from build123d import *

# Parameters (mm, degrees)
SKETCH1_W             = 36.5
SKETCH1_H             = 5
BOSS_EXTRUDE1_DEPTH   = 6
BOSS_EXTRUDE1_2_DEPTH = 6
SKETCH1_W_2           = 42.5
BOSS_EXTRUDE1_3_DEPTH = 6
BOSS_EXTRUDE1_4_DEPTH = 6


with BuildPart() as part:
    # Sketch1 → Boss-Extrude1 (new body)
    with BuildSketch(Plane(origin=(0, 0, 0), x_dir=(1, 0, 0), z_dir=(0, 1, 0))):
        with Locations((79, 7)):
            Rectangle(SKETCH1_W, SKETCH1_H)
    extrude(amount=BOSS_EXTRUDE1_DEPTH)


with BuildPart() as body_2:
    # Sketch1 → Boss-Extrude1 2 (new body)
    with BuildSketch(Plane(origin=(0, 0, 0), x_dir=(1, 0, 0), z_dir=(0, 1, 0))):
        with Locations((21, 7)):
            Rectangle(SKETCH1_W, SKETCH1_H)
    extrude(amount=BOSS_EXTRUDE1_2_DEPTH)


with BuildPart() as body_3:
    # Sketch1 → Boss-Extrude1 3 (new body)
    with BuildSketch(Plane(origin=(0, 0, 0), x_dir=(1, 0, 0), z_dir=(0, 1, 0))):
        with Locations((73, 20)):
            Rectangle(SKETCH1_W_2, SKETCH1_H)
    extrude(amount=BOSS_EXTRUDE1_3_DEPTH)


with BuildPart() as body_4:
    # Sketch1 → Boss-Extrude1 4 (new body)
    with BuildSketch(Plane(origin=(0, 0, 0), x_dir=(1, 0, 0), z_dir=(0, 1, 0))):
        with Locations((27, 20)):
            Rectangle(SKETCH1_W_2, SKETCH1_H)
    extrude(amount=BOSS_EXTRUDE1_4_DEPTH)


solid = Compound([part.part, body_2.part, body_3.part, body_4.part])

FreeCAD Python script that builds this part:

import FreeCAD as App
import Part
import Sketcher

V = App.Vector
Q = App.Units.Quantity

doc = App.newDocument("Part")
params = doc.addObject("Spreadsheet::Sheet", "Params")
for row, (alias, value) in enumerate([
    ("sketch1_height", "5 mm"),
    ("sketch1_width", "36.5 mm"),
    ("pad1_length", "6 mm"),
    ("sketch2_height", "5 mm"),
    ("sketch2_width", "36.5 mm"),
    ("pad2_length", "6 mm"),
    ("sketch3_height", "5 mm"),
    ("sketch3_width", "42.5 mm"),
    ("pad3_length", "6 mm"),
    ("sketch4_height", "5 mm"),
    ("sketch4_width", "42.5 mm"),
    ("pad4_length", "6 mm"),
], start=1):
    params.set(f"A{row}", alias)
    params.set(f"B{row}", "=" + value)
    params.setAlias(f"B{row}", alias)

body = doc.addObject("PartDesign::Body", "Body")

sketch1 = body.newObject("Sketcher::SketchObject", "Sketch")
sketch1.AttachmentSupport = (doc.getObject("XZ_Plane"), [""])
sketch1.MapMode = "FlatFace"
sketch1.addGeometry(Part.LineSegment(V(61, -10, 0), V(61, -4, 0)), False)
sketch1.addGeometry(Part.LineSegment(V(61, -4, 0), V(97, -4, 0)), False)
sketch1.addGeometry(Part.LineSegment(V(97, -4, 0), V(97, -10, 0)), False)
sketch1.addGeometry(Part.LineSegment(V(97, -10, 0), V(61, -10, 0)), False)
sketch1.addConstraint(Sketcher.Constraint("Coincident", 0, 2, 1, 1))
sketch1.addConstraint(Sketcher.Constraint("Coincident", 1, 2, 2, 1))
sketch1.addConstraint(Sketcher.Constraint("Coincident", 2, 2, 3, 1))
sketch1.addConstraint(Sketcher.Constraint("Coincident", 3, 2, 0, 1))
sketch1.addConstraint(Sketcher.Constraint("Vertical", 0))
sketch1.addConstraint(Sketcher.Constraint("Horizontal", 1))
sketch1.addConstraint(Sketcher.Constraint("Vertical", 2))
sketch1.addConstraint(Sketcher.Constraint("Horizontal", 3))
sketch1.addConstraint(Sketcher.Constraint("DistanceY", 0, 1, 0, 2, Q("5 mm")))
sketch1.addConstraint(Sketcher.Constraint("DistanceX", 1, 1, 1, 2, Q("36.5 mm")))
sketch1.addConstraint(Sketcher.Constraint("DistanceY", 0, 2, -1, 1, Q("4.5 mm")))
sketch1.addConstraint(Sketcher.Constraint("DistanceX", -1, 1, 0, 2, Q("60.75 mm")))
sketch1.setExpression("Constraints[8]", "Params.sketch1_height")
sketch1.setExpression("Constraints[9]", "Params.sketch1_width")
pad1 = body.newObject("PartDesign::Pad", "Pad")
pad1.Profile = sketch1
pad1.setExpression("Length", "Params.pad1_length")
pad1.Reversed = True
body2 = doc.addObject("PartDesign::Body", "Body001")

sketch2 = body2.newObject("Sketcher::SketchObject", "Sketch001")
sketch2.AttachmentSupport = (doc.getObject("XZ_Plane001"), [""])
sketch2.MapMode = "FlatFace"
sketch2.addGeometry(Part.LineSegment(V(3, -10, 0), V(3, -4, 0)), False)
sketch2.addGeometry(Part.LineSegment(V(3, -4, 0), V(39, -4, 0)), False)
sketch2.addGeometry(Part.LineSegment(V(39, -4, 0), V(39, -10, 0)), False)
sketch2.addGeometry(Part.LineSegment(V(39, -10, 0), V(3, -10, 0)), False)
sketch2.addConstraint(Sketcher.Constraint("Coincident", 0, 2, 1, 1))
sketch2.addConstraint(Sketcher.Constraint("Coincident", 1, 2, 2, 1))
sketch2.addConstraint(Sketcher.Constraint("Coincident", 2, 2, 3, 1))
sketch2.addConstraint(Sketcher.Constraint("Coincident", 3, 2, 0, 1))
sketch2.addConstraint(Sketcher.Constraint("Vertical", 0))
sketch2.addConstraint(Sketcher.Constraint("Horizontal", 1))
sketch2.addConstraint(Sketcher.Constraint("Vertical", 2))
sketch2.addConstraint(Sketcher.Constraint("Horizontal", 3))
sketch2.addConstraint(Sketcher.Constraint("DistanceY", 0, 1, 0, 2, Q("5 mm")))
sketch2.addConstraint(Sketcher.Constraint("DistanceX", 1, 1, 1, 2, Q("36.5 mm")))
sketch2.addConstraint(Sketcher.Constraint("DistanceY", 0, 2, -1, 1, Q("4.5 mm")))
sketch2.addConstraint(Sketcher.Constraint("DistanceX", -1, 1, 0, 2, Q("2.75 mm")))
sketch2.setExpression("Constraints[8]", "Params.sketch2_height")
sketch2.setExpression("Constraints[9]", "Params.sketch2_width")
pad2 = body2.newObject("PartDesign::Pad", "Pad001")
pad2.Profile = sketch2
pad2.setExpression("Length", "Params.pad2_length")
pad2.Reversed = True
body3 = doc.addObject("PartDesign::Body", "Body002")

sketch3 = body3.newObject("Sketcher::SketchObject", "Sketch002")
sketch3.AttachmentSupport = (doc.getObject("XZ_Plane002"), [""])
sketch3.MapMode = "FlatFace"
sketch3.addGeometry(Part.LineSegment(V(52, -22, 0), V(52, -18, 0)), False)
sketch3.addGeometry(Part.LineSegment(V(52, -18, 0), V(94, -18, 0)), False)
sketch3.addGeometry(Part.LineSegment(V(94, -18, 0), V(94, -22, 0)), False)
sketch3.addGeometry(Part.LineSegment(V(94, -22, 0), V(52, -22, 0)), False)
sketch3.addConstraint(Sketcher.Constraint("Coincident", 0, 2, 1, 1))
sketch3.addConstraint(Sketcher.Constraint("Coincident", 1, 2, 2, 1))
sketch3.addConstraint(Sketcher.Constraint("Coincident", 2, 2, 3, 1))
sketch3.addConstraint(Sketcher.Constraint("Coincident", 3, 2, 0, 1))
sketch3.addConstraint(Sketcher.Constraint("Vertical", 0))
sketch3.addConstraint(Sketcher.Constraint("Horizontal", 1))
sketch3.addConstraint(Sketcher.Constraint("Vertical", 2))
sketch3.addConstraint(Sketcher.Constraint("Horizontal", 3))
sketch3.addConstraint(Sketcher.Constraint("DistanceY", 0, 1, 0, 2, Q("5 mm")))
sketch3.addConstraint(Sketcher.Constraint("DistanceX", 1, 1, 1, 2, Q("42.5 mm")))
sketch3.addConstraint(Sketcher.Constraint("DistanceY", 0, 2, -1, 1, Q("17.5 mm")))
sketch3.addConstraint(Sketcher.Constraint("DistanceX", -1, 1, 0, 2, Q("51.75 mm")))
sketch3.setExpression("Constraints[8]", "Params.sketch3_height")
sketch3.setExpression("Constraints[9]", "Params.sketch3_width")
pad3 = body3.newObject("PartDesign::Pad", "Pad002")
pad3.Profile = sketch3
pad3.setExpression("Length", "Params.pad3_length")
pad3.Reversed = True
body4 = doc.addObject("PartDesign::Body", "Body003")

sketch4 = body4.newObject("Sketcher::SketchObject", "Sketch003")
sketch4.AttachmentSupport = (doc.getObject("XZ_Plane003"), [""])
sketch4.MapMode = "FlatFace"
sketch4.addGeometry(Part.LineSegment(V(6, -22, 0), V(6, -18, 0)), False)
sketch4.addGeometry(Part.LineSegment(V(6, -18, 0), V(48, -18, 0)), False)
sketch4.addGeometry(Part.LineSegment(V(48, -18, 0), V(48, -22, 0)), False)
sketch4.addGeometry(Part.LineSegment(V(48, -22, 0), V(6, -22, 0)), False)
sketch4.addConstraint(Sketcher.Constraint("Coincident", 0, 2, 1, 1))
sketch4.addConstraint(Sketcher.Constraint("Coincident", 1, 2, 2, 1))
sketch4.addConstraint(Sketcher.Constraint("Coincident", 2, 2, 3, 1))
sketch4.addConstraint(Sketcher.Constraint("Coincident", 3, 2, 0, 1))
sketch4.addConstraint(Sketcher.Constraint("Vertical", 0))
sketch4.addConstraint(Sketcher.Constraint("Horizontal", 1))
sketch4.addConstraint(Sketcher.Constraint("Vertical", 2))
sketch4.addConstraint(Sketcher.Constraint("Horizontal", 3))
sketch4.addConstraint(Sketcher.Constraint("DistanceY", 0, 1, 0, 2, Q("5 mm")))
sketch4.addConstraint(Sketcher.Constraint("DistanceX", 1, 1, 1, 2, Q("42.5 mm")))
sketch4.addConstraint(Sketcher.Constraint("DistanceY", 0, 2, -1, 1, Q("17.5 mm")))
sketch4.addConstraint(Sketcher.Constraint("DistanceX", -1, 1, 0, 2, Q("5.75 mm")))
sketch4.setExpression("Constraints[8]", "Params.sketch4_height")
sketch4.setExpression("Constraints[9]", "Params.sketch4_width")
pad4 = body4.newObject("PartDesign::Pad", "Pad003")
pad4.Profile = sketch4
pad4.setExpression("Length", "Params.pad4_length")
pad4.Reversed = True

doc.recompute()
